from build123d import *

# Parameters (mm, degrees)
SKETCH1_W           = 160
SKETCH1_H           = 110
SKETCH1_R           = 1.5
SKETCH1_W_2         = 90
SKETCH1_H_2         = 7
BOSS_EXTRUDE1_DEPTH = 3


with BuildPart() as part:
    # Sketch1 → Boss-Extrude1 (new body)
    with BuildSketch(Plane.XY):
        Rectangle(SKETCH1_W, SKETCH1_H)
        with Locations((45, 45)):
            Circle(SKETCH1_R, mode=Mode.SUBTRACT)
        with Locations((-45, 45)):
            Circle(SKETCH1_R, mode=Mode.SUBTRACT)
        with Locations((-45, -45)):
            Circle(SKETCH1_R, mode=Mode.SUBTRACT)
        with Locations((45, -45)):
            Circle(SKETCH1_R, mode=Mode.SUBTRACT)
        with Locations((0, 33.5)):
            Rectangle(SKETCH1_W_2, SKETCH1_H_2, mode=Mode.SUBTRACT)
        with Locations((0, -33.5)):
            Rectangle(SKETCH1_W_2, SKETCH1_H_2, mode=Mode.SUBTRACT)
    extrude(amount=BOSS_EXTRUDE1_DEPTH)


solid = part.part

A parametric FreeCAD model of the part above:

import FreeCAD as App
import Part
import Sketcher
from FreeCAD import Vector

doc = App.newDocument("Part")
body = doc.addObject("PartDesign::Body", "Body")

# Sketch on XY plane
sketch1 = body.newObject("Sketcher::SketchObject", "Sketch")
sketch1.AttachmentSupport = (doc.getObject("XY_Plane"), [""])
sketch1.MapMode = "FlatFace"
sketch1.addGeometry(Part.LineSegment(Vector(-80, 55, 0), Vector(-80, -55, 0)), False)
sketch1.addGeometry(Part.LineSegment(Vector(-80, -55, 0), Vector(80, -55, 0)), False)
sketch1.addGeometry(Part.LineSegment(Vector(80, -55, 0), Vector(80, 55, 0)), False)
sketch1.addGeometry(Part.LineSegment(Vector(80, 55, 0), Vector(-80, 55, 0)), False)
sketch1.addGeometry(Part.Circle(Vector(-45, -45, 0), Vector(0, 0, 1), 1.5), False)
sketch1.addGeometry(Part.LineSegment(Vector(45, -37, 0), Vector(-45, -37, 0)), False)
sketch1.addGeometry(Part.LineSegment(Vector(-45, -37, 0), Vector(-45, -30, 0)), False)
sketch1.addGeometry(Part.LineSegment(Vector(-45, -30, 0), Vector(45, -30, 0)), False)
sketch1.addGeometry(Part.LineSegment(Vector(45, -30, 0), Vector(45, -37, 0)), False)
sketch1.addGeometry(Part.Circle(Vector(45, -45, 0), Vector(0, 0, 1), 1.5), False)
sketch1.addGeometry(Part.Circle(Vector(-45, 45, 0), Vector(0, 0, 1), 1.5), False)
sketch1.addGeometry(Part.LineSegment(Vector(45, 30, 0), Vector(-45, 30, 0)), False)
sketch1.addGeometry(Part.LineSegment(Vector(-45, 30, 0), Vector(-45, 37, 0)), False)
sketch1.addGeometry(Part.LineSegment(Vector(-45, 37, 0), Vector(45, 37, 0)), False)
sketch1.addGeometry(Part.LineSegment(Vector(45, 37, 0), Vector(45, 30, 0)), False)
sketch1.addGeometry(Part.Circle(Vector(45, 45, 0), Vector(0, 0, 1), 1.5), False)
sketch1.addConstraint(Sketcher.Constraint("Coincident", 0, 2, 1, 1))
sketch1.addConstraint(Sketcher.Constraint("Coincident", 1, 2, 2, 1))
sketch1.addConstraint(Sketcher.Constraint("Coincident", 2, 2, 3, 1))
sketch1.addConstraint(Sketcher.Constraint("Coincident", 3, 2, 0, 1))
sketch1.addConstraint(Sketcher.Constraint("Coincident", 5, 2, 6, 1))
sketch1.addConstraint(Sketcher.Constraint("Coincident", 6, 2, 7, 1))
sketch1.addConstraint(Sketcher.Constraint("Coincident", 7, 2, 8, 1))
sketch1.addConstraint(Sketcher.Constraint("Coincident", 8, 2, 5, 1))
sketch1.addConstraint(Sketcher.Constraint("Coincident", 11, 2, 12, 1))
sketch1.addConstraint(Sketcher.Constraint("Coincident", 12, 2, 13, 1))
sketch1.addConstraint(Sketcher.Constraint("Coincident", 13, 2, 14, 1))
sketch1.addConstraint(Sketcher.Constraint("Coincident", 14, 2, 11, 1))
sketch1.addConstraint(Sketcher.Constraint("Vertical", 0))
sketch1.addConstraint(Sketcher.Constraint("Horizontal", 1))
sketch1.addConstraint(Sketcher.Constraint("Vertical", 2))
sketch1.addConstraint(Sketcher.Constraint("Horizontal", 3))
sketch1.addConstraint(Sketcher.Constraint("Horizontal", 5))
sketch1.addConstraint(Sketcher.Constraint("Vertical", 6))
sketch1.addConstraint(Sketcher.Constraint("Horizontal", 7))
sketch1.addConstraint(Sketcher.Constraint("Vertical", 8))
sketch1.addConstraint(Sketcher.Constraint("Horizontal", 11))
sketch1.addConstraint(Sketcher.Constraint("Vertical", 12))
sketch1.addConstraint(Sketcher.Constraint("Horizontal", 13))
sketch1.addConstraint(Sketcher.Constraint("Vertical", 14))
sketch1.addConstraint(Sketcher.Constraint("Equal", 4, 9))
sketch1.addConstraint(Sketcher.Constraint("Equal", 9, 10))
sketch1.addConstraint(Sketcher.Constraint("Equal", 10, 15))
sketch1.addConstraint(Sketcher.Constraint("Symmetric", 9, 3, 10, 3, -1, 1))
sketch1.addConstraint(Sketcher.Constraint("Symmetric", 4, 3, 15, 3, -1, 1))
sketch1.addConstraint(Sketcher.Constraint("Symmetric", 0, 2, 2, 2, -1, 1))
sketch1.addConstraint(Sketcher.Constraint("Symmetric", 7, 2, 11, 2, -1, 1))
sketch1.addConstraint(Sketcher.Constraint("Symmetric", 5, 2, 13, 2, -1, 1))
sketch1.addConstraint(Sketcher.Constraint("Symmetric", 4, 3, 9, 3, -2))
sketch1.addConstraint(Sketcher.Constraint("Vertical", 10, 3, 5, 2))
sketch1.addConstraint(Sketcher.Constraint("Vertical", 15, 3, 7, 2))
sketch1.addConstraint(Sketcher.Constraint("Diameter", 4, 3.0))
sketch1.addConstraint(Sketcher.Constraint("DistanceX", 1, 1, 1, 2, 160.0))
sketch1.addConstraint(Sketcher.Constraint("DistanceX", 5, 2, 5, 1, 90.0))
sketch1.addConstraint(Sketcher.Constraint("DistanceY", 0, 2, 0, 1, 110.0))
sketch1.addConstraint(Sketcher.Constraint("DistanceY", 6, 1, 6, 2, 7.0))
sketch1.addConstraint(Sketcher.Constraint("DistanceY", 4, 3, -1, 1, 45.0))
sketch1.addConstraint(Sketcher.Constraint("DistanceY", 5, 2, -1, 1, 37.0))
pad1 = body.newObject("PartDesign::Pad", "Pad")
pad1.Profile = sketch1
pad1.Length = 3

doc.recompute()
